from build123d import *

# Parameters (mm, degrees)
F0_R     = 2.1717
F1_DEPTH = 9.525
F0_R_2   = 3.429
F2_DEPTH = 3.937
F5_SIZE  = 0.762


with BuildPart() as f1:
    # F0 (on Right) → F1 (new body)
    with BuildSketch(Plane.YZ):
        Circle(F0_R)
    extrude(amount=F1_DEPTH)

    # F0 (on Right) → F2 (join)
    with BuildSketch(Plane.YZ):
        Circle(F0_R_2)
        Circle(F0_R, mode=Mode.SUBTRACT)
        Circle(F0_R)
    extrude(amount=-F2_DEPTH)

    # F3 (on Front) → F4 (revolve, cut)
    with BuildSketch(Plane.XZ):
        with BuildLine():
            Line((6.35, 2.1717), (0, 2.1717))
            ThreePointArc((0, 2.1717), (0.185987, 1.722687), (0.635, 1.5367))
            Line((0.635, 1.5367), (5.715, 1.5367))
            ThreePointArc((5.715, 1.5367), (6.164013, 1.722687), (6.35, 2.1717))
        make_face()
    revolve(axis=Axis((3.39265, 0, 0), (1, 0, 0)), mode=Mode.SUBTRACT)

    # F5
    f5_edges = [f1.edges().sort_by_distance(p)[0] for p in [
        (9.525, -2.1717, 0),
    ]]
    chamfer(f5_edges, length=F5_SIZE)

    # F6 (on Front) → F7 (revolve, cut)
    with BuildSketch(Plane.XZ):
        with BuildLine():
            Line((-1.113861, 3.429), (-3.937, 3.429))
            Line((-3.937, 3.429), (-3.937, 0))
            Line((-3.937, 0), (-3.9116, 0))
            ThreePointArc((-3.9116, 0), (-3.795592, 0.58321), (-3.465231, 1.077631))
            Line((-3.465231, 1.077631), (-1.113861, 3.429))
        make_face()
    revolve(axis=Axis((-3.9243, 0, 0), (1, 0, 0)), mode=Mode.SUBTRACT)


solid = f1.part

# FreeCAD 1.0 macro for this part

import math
import FreeCAD as App
import Part
import Sketcher
from FreeCAD import Vector
Q = App.Units.Quantity


def edges_at(feature, points):
    """Names of the edges that pass closest to the given points."""
    edges = feature.Shape.Edges
    near = lambda p: min(range(len(edges)), key=lambda i: edges[i].distToShape(Part.Vertex(*p))[0])
    return sorted({f"Edge{near(p) + 1}" for p in points})

doc = App.newDocument("Part")
body = doc.addObject("PartDesign::Body", "Body")

# Sketch on YZ plane
sketch1 = doc.addObject("Sketcher::SketchObject", "Sketch")
body.addObject(sketch1)
sketch1.AttachmentSupport = (doc.YZ_Plane, [""])
sketch1.MapMode = "FlatFace"
sketch1.addGeometry(Part.Circle(Vector(0, 0, 0), Vector(0, 0, 1), 2.2), False)
sketch1.addConstraint([
    Sketcher.Constraint("Coincident", 0, 3, -1, 1),
    Sketcher.Constraint("Diameter", 0, Q("0.171 in")),
])
pad1 = doc.addObject("PartDesign::Pad", "Pad")
body.addObject(pad1)
pad1.Profile = sketch1
pad1.Length = Q("0.375 in")

# Sketch on YZ plane
sketch2 = doc.addObject("Sketcher::SketchObject", "Sketch001")
body.addObject(sketch2)
sketch2.AttachmentSupport = (doc.YZ_Plane, [""])
sketch2.MapMode = "FlatFace"
sketch2.addGeometry(Part.Circle(Vector(0, 0, 0), Vector(0, 0, 1), 3.4), False)
sketch2.addConstraint([
    Sketcher.Constraint("Coincident", 0, 3, -1, 1),
    Sketcher.Constraint("Diameter", 0, Q("0.27 in")),
])
pad2 = doc.addObject("PartDesign::Pad", "Pad001")
body.addObject(pad2)
pad2.Profile = sketch2
pad2.Length = Q("0.155 in")
pad2.Reversed = True

# Sketch on XZ plane
sketch3 = doc.addObject("Sketcher::SketchObject", "Sketch002")
body.addObject(sketch3)
sketch3.AttachmentSupport = (doc.XZ_Plane, [""])
sketch3.MapMode = "FlatFace"
sketch3.addGeometry([
    Part.LineSegment(Vector(6.3, 2.2, 0), Vector(0, 2.2, 0)),
    Part.ArcOfCircle(Part.Circle(Vector(0.6, 2.2, 0), Vector(0, 0, 1), 0.6), math.radians(180), math.radians(270)),
    Part.LineSegment(Vector(0.6, 1.5, 0), Vector(5.7, 1.5, 0)),
    Part.ArcOfCircle(Part.Circle(Vector(5.7, 2.2, 0), Vector(0, 0, 1), 0.6), math.radians(-90), math.radians(0)),
], False)
sketch3.addConstraint([
    Sketcher.Constraint("Coincident", 0, 2, 1, 1),
    Sketcher.Constraint("Tangent", 1, 2, 2, 1),
    Sketcher.Constraint("Tangent", 2, 2, 3, 1),
    Sketcher.Constraint("Coincident", 3, 2, 0, 1),
    Sketcher.Constraint("Horizontal", 0),
    Sketcher.Constraint("Horizontal", 2),
    Sketcher.Constraint("Equal", 1, 3),
    Sketcher.Constraint("PointOnObject", 0, 2, -2),
    Sketcher.Constraint("Horizontal", 3, 3, 0, 2),
    Sketcher.Constraint("DistanceX", 2, 1, 2, 2, Q("0.2 in")),
    Sketcher.Constraint("Radius", 1, Q("0.025 in")),
    Sketcher.Constraint("DistanceY", -1, 1, 1, 3, Q("0.0855 in")),
])
groove = doc.addObject("PartDesign::Groove", "Groove")
body.addObject(groove)
groove.Profile = sketch3
groove.ReferenceAxis = (sketch3, ["H_Axis"])
groove.Angle = 360
doc.recompute()

chamfer = doc.addObject("PartDesign::Chamfer", "Chamfer")
body.addObject(chamfer)
chamfer.Base = (groove, edges_at(groove, [(9.525, -2.172, 0)]))
chamfer.Size = Q("0.03 in")

# Sketch on XZ plane
sketch4 = doc.addObject("Sketcher::SketchObject", "Sketch003")
body.addObject(sketch4)
sketch4.AttachmentSupport = (doc.XZ_Plane, [""])
sketch4.MapMode = "FlatFace"
sketch4.addGeometry([
    Part.LineSegment(Vector(-1.114, 3.429, 0), Vector(-3.937, 3.429, 0)),  # 0
    Part.LineSegment(Vector(-3.937, 3.429, 0), Vector(-3.937, 0, 0)),  # 1
    Part.LineSegment(Vector(-3.937, 0, 0), Vector(-3.912, 0, 0)),  # 2
    Part.ArcOfCircle(Part.Circle(Vector(-2.388, 0, 0), Vector(0, 0, 1), 1.524), math.radians(135), math.radians(180)),  # 3
    Part.LineSegment(Vector(-3.465, 1.078, 0), Vector(-1.114, 3.429, 0)),  # 4
], False)
sketch4.addConstraint([
    Sketcher.Constraint("Coincident", 0, 2, 1, 1),
    Sketcher.Constraint("Coincident", 1, 2, 2, 1),
    Sketcher.Constraint("Coincident", 2, 2, 3, 2),
    Sketcher.Constraint("Tangent", 3, 1, 4, 1),
    Sketcher.Constraint("Coincident", 4, 2, 0, 1),
    Sketcher.Constraint("Horizontal", 0),
    Sketcher.Constraint("Vertical", 1),
    Sketcher.Constraint("Horizontal", 2),
    Sketcher.Constraint("PointOnObject", 3, 3, -1),
    Sketcher.Constraint("PointOnObject", 1, 2, -1),
    Sketcher.Constraint("Radius", 3, Q("0.0600002 in")),
    Sketcher.Constraint("Angle", 4, Q("44.999988 deg")),
    Sketcher.Constraint("DistanceX", 2, 1, 2, 2, Q("0.001 in")),
    Sketcher.Constraint("DistanceY", 1, 2, 1, 1, Q("0.135 in")),
    Sketcher.Constraint("DistanceX", 3, 3, -1, 1, Q("0.0939998 in")),
])
groove2 = doc.addObject("PartDesign::Groove", "Groove001")
body.addObject(groove2)
groove2.Profile = sketch4
groove2.ReferenceAxis = (sketch4, ["H_Axis"])
groove2.Angle = 360

doc.recompute()
